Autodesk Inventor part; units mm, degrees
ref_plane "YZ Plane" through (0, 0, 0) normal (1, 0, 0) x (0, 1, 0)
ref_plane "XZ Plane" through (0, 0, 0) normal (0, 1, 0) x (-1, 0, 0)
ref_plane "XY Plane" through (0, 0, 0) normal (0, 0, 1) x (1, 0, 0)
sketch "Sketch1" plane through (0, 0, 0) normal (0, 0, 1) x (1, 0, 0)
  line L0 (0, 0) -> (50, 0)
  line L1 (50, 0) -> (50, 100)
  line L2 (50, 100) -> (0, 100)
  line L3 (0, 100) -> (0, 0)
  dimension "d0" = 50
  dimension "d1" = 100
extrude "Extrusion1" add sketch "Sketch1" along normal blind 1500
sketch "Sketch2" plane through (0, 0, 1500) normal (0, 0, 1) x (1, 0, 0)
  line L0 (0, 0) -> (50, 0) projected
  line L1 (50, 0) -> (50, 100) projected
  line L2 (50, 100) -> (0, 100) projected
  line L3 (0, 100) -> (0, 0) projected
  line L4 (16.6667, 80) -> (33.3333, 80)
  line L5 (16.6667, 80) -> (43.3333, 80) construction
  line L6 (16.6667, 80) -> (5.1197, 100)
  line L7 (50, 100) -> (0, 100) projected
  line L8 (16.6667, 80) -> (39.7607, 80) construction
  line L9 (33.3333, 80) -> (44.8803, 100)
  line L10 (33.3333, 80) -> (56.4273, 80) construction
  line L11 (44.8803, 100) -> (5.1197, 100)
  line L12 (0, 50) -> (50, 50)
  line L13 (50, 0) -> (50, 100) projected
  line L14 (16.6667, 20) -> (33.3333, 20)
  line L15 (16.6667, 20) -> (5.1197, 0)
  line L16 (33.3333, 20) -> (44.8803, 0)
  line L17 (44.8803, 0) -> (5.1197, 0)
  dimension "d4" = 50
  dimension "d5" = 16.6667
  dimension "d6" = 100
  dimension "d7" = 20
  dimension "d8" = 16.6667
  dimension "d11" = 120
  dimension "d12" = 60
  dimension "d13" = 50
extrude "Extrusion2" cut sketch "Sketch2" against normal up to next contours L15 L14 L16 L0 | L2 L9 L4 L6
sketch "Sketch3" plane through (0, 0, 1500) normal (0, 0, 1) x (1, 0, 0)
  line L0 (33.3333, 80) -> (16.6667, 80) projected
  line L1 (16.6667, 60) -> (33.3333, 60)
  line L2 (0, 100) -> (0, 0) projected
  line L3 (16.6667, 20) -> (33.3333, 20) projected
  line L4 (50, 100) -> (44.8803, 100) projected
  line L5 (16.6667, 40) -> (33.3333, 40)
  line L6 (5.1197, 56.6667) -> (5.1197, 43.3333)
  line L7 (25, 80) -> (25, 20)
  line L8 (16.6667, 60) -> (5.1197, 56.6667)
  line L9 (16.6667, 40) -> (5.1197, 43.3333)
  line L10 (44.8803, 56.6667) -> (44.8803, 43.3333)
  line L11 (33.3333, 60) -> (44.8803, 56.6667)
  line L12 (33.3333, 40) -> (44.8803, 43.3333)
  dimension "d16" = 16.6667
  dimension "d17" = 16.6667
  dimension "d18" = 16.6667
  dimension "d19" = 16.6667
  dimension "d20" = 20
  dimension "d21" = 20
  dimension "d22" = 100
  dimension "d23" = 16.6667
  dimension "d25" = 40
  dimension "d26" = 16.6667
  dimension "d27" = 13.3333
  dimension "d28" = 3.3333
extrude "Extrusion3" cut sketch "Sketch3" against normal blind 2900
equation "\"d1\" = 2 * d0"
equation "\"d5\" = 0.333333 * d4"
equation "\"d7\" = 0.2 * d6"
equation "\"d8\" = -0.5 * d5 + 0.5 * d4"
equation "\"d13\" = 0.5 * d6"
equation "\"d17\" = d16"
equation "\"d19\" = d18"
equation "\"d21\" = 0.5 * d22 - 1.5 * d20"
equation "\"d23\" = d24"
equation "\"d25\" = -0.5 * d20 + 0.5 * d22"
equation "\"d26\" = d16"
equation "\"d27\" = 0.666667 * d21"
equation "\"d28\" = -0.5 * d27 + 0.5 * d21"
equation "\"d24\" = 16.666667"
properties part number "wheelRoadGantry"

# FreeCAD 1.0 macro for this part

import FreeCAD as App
import Part
import Sketcher

V = App.Vector
Q = App.Units.Quantity

doc = App.newDocument("Part")
body = doc.addObject("PartDesign::Body", "Body")

sketch1 = body.newObject("Sketcher::SketchObject", "Sketch")
sketch1.AttachmentSupport = (doc.getObject("XY_Plane"), [""])
sketch1.MapMode = "FlatFace"
sketch1.addGeometry(Part.LineSegment(V(0, 100, 0), V(0, 0, 0)), False)
sketch1.addGeometry(Part.LineSegment(V(0, 0, 0), V(50, 0, 0)), False)
sketch1.addGeometry(Part.LineSegment(V(50, 0, 0), V(50, 100, 0)), False)
sketch1.addGeometry(Part.LineSegment(V(50, 100, 0), V(0, 100, 0)), False)
sketch1.addConstraint(Sketcher.Constraint("Coincident", 0, 2, 1, 1))
sketch1.addConstraint(Sketcher.Constraint("Coincident", 1, 2, 2, 1))
sketch1.addConstraint(Sketcher.Constraint("Coincident", 2, 2, 3, 1))
sketch1.addConstraint(Sketcher.Constraint("Coincident", 3, 2, 0, 1))
sketch1.addConstraint(Sketcher.Constraint("Vertical", 0))
sketch1.addConstraint(Sketcher.Constraint("Horizontal", 1))
sketch1.addConstraint(Sketcher.Constraint("Vertical", 2))
sketch1.addConstraint(Sketcher.Constraint("Horizontal", 3))
sketch1.addConstraint(Sketcher.Constraint("Coincident", 0, 2, -1, 1))
sketch1.addConstraint(Sketcher.Constraint("DistanceX", 1, 1, 1, 2, 50.0))
sketch1.addConstraint(Sketcher.Constraint("DistanceY", 0, 2, 0, 1, 100.0))
pad1 = body.newObject("PartDesign::Pad", "Pad")
pad1.Profile = sketch1
pad1.Length = 1500

sketch2 = body.newObject("Sketcher::SketchObject", "Sketch001")
sketch2.AttachmentSupport = (doc.getObject("XY_Plane"), [""])
sketch2.MapMode = "FlatFace"
sketch2.AttachmentOffset = App.Placement(V(0, 0, 1500), App.Rotation())
sketch2.addGeometry(Part.LineSegment(V(16.6667, 20, 0), V(5.1197, 0, 0)), False)
sketch2.addGeometry(Part.LineSegment(V(5.1197, 0, 0), V(44.8803, 0, 0)), False)
sketch2.addGeometry(Part.LineSegment(V(44.8803, 0, 0), V(33.3333, 20, 0)), False)
sketch2.addGeometry(Part.LineSegment(V(33.3333, 20, 0), V(16.6667, 20, 0)), False)
sketch2.addGeometry(Part.LineSegment(V(44.8803, 100, 0), V(5.1197, 100, 0)), False)
sketch2.addGeometry(Part.LineSegment(V(5.1197, 100, 0), V(16.6667, 80, 0)), False)
sketch2.addGeometry(Part.LineSegment(V(16.6667, 80, 0), V(33.3333, 80, 0)), False)
sketch2.addGeometry(Part.LineSegment(V(33.3333, 80, 0), V(44.8803, 100, 0)), False)
sketch2.addConstraint(Sketcher.Constraint("Coincident", 0, 2, 1, 1))
sketch2.addConstraint(Sketcher.Constraint("Coincident", 1, 2, 2, 1))
sketch2.addConstraint(Sketcher.Constraint("Coincident", 2, 2, 3, 1))
sketch2.addConstraint(Sketcher.Constraint("Coincident", 3, 2, 0, 1))
sketch2.addConstraint(Sketcher.Constraint("Coincident", 4, 2, 5, 1))
sketch2.addConstraint(Sketcher.Constraint("Coincident", 5, 2, 6, 1))
sketch2.addConstraint(Sketcher.Constraint("Coincident", 6, 2, 7, 1))
sketch2.addConstraint(Sketcher.Constraint("Coincident", 7, 2, 4, 1))
sketch2.addConstraint(Sketcher.Constraint("Horizontal", 1))
sketch2.addConstraint(Sketcher.Constraint("Horizontal", 3))
sketch2.addConstraint(Sketcher.Constraint("Horizontal", 4))
sketch2.addConstraint(Sketcher.Constraint("Horizontal", 6))
sketch2.addConstraint(Sketcher.Constraint("PointOnObject", 0, 2, -1))
sketch2.addConstraint(Sketcher.Constraint("Parallel", 2, 5))
sketch2.addConstraint(Sketcher.Constraint("Parallel", 0, 7))
sketch2.addConstraint(Sketcher.Constraint("Vertical", 0, 2, 4, 2))
sketch2.addConstraint(Sketcher.Constraint("Vertical", 3, 2, 5, 2))
sketch2.addConstraint(Sketcher.Constraint("Vertical", 2, 2, 6, 2))
sketch2.addConstraint(Sketcher.Constraint("Vertical", 1, 2, 7, 2))
sketch2.addConstraint(Sketcher.Constraint("Angle", 0, Q("-120 deg")))
sketch2.addConstraint(Sketcher.Constraint("DistanceY", -1, 1, 2, 2, 20.0))
sketch2.addConstraint(Sketcher.Constraint("DistanceY", -1, 1, 4, 2, 100.0))
sketch2.addConstraint(Sketcher.Constraint("DistanceX", 3, 2, 3, 1, 16.6666))
sketch2.addConstraint(Sketcher.Constraint("DistanceX", -1, 1, 3, 2, 16.6667))
pocket1 = body.newObject("PartDesign::Pocket", "Pocket")
pocket1.Profile = sketch2
pocket1.Type = "UpToFirst"

sketch3 = body.newObject("Sketcher::SketchObject", "Sketch002")
sketch3.AttachmentSupport = (doc.getObject("XY_Plane"), [""])
sketch3.MapMode = "FlatFace"
sketch3.AttachmentOffset = App.Placement(V(0, 0, 1500), App.Rotation())
sketch3.addGeometry(Part.LineSegment(V(16.6667, 60, 0), V(5.1197, 56.6667, 0)), False)
sketch3.addGeometry(Part.LineSegment(V(5.1197, 56.6667, 0), V(5.1197, 43.3333, 0)), False)
sketch3.addGeometry(Part.LineSegment(V(5.1197, 43.3333, 0), V(16.6667, 40, 0)), False)
sketch3.addGeometry(Part.LineSegment(V(16.6667, 40, 0), V(33.3333, 40, 0)), False)
sketch3.addGeometry(Part.LineSegment(V(33.3333, 40, 0), V(44.8803, 43.3333, 0)), False)
sketch3.addGeometry(Part.LineSegment(V(44.8803, 43.3333, 0), V(44.8803, 56.6667, 0)), False)
sketch3.addGeometry(Part.LineSegment(V(44.8803, 56.6667, 0), V(33.3333, 60, 0)), False)
sketch3.addGeometry(Part.LineSegment(V(33.3333, 60, 0), V(16.6667, 60, 0)), False)
sketch3.addConstraint(Sketcher.Constraint("Coincident", 0, 2, 1, 1))
sketch3.addConstraint(Sketcher.Constraint("Coincident", 1, 2, 2, 1))
sketch3.addConstraint(Sketcher.Constraint("Coincident", 2, 2, 3, 1))
sketch3.addConstraint(Sketcher.Constraint("Coincident", 3, 2, 4, 1))
sketch3.addConstraint(Sketcher.Constraint("Coincident", 4, 2, 5, 1))
sketch3.addConstraint(Sketcher.Constraint("Coincident", 5, 2, 6, 1))
sketch3.addConstraint(Sketcher.Constraint("Coincident", 6, 2, 7, 1))
sketch3.addConstraint(Sketcher.Constraint("Coincident", 7, 2, 0, 1))
sketch3.addConstraint(Sketcher.Constraint("Vertical", 1))
sketch3.addConstraint(Sketcher.Constraint("Horizontal", 3))
sketch3.addConstraint(Sketcher.Constraint("Vertical", 5))
sketch3.addConstraint(Sketcher.Constraint("Horizontal", 7))
sketch3.addConstraint(Sketcher.Constraint("Parallel", 0, 4))
sketch3.addConstraint(Sketcher.Constraint("Parallel", 2, 6))
sketch3.addConstraint(Sketcher.Constraint("Horizontal", 1, 2, 4, 2))
sketch3.addConstraint(Sketcher.Constraint("Horizontal", 0, 2, 5, 2))
sketch3.addConstraint(Sketcher.Constraint("Vertical", 3, 2, 6, 2))
sketch3.addConstraint(Sketcher.Constraint("Vertical", 2, 2, 7, 2))
sketch3.addConstraint(Sketcher.Constraint("DistanceY", -1, 1, 2, 2, 40.0))
sketch3.addConstraint(Sketcher.Constraint("DistanceY", 3, 2, 6, 2, 20.0))
sketch3.addConstraint(Sketcher.Constraint("DistanceX", 3, 1, 3, 2, 16.6666))
sketch3.addConstraint(Sketcher.Constraint("DistanceY", 1, 2, 1, 1, 13.3334))
sketch3.addConstraint(Sketcher.Constraint("DistanceX", -1, 1, 2, 2, 16.6667))
sketch3.addConstraint(Sketcher.Constraint("DistanceX", 1, 2, 2, 2, 11.547))
pocket2 = body.newObject("PartDesign::Pocket", "Pocket001")
pocket2.Profile = sketch3
pocket2.Length = 2900

doc.recompute()
